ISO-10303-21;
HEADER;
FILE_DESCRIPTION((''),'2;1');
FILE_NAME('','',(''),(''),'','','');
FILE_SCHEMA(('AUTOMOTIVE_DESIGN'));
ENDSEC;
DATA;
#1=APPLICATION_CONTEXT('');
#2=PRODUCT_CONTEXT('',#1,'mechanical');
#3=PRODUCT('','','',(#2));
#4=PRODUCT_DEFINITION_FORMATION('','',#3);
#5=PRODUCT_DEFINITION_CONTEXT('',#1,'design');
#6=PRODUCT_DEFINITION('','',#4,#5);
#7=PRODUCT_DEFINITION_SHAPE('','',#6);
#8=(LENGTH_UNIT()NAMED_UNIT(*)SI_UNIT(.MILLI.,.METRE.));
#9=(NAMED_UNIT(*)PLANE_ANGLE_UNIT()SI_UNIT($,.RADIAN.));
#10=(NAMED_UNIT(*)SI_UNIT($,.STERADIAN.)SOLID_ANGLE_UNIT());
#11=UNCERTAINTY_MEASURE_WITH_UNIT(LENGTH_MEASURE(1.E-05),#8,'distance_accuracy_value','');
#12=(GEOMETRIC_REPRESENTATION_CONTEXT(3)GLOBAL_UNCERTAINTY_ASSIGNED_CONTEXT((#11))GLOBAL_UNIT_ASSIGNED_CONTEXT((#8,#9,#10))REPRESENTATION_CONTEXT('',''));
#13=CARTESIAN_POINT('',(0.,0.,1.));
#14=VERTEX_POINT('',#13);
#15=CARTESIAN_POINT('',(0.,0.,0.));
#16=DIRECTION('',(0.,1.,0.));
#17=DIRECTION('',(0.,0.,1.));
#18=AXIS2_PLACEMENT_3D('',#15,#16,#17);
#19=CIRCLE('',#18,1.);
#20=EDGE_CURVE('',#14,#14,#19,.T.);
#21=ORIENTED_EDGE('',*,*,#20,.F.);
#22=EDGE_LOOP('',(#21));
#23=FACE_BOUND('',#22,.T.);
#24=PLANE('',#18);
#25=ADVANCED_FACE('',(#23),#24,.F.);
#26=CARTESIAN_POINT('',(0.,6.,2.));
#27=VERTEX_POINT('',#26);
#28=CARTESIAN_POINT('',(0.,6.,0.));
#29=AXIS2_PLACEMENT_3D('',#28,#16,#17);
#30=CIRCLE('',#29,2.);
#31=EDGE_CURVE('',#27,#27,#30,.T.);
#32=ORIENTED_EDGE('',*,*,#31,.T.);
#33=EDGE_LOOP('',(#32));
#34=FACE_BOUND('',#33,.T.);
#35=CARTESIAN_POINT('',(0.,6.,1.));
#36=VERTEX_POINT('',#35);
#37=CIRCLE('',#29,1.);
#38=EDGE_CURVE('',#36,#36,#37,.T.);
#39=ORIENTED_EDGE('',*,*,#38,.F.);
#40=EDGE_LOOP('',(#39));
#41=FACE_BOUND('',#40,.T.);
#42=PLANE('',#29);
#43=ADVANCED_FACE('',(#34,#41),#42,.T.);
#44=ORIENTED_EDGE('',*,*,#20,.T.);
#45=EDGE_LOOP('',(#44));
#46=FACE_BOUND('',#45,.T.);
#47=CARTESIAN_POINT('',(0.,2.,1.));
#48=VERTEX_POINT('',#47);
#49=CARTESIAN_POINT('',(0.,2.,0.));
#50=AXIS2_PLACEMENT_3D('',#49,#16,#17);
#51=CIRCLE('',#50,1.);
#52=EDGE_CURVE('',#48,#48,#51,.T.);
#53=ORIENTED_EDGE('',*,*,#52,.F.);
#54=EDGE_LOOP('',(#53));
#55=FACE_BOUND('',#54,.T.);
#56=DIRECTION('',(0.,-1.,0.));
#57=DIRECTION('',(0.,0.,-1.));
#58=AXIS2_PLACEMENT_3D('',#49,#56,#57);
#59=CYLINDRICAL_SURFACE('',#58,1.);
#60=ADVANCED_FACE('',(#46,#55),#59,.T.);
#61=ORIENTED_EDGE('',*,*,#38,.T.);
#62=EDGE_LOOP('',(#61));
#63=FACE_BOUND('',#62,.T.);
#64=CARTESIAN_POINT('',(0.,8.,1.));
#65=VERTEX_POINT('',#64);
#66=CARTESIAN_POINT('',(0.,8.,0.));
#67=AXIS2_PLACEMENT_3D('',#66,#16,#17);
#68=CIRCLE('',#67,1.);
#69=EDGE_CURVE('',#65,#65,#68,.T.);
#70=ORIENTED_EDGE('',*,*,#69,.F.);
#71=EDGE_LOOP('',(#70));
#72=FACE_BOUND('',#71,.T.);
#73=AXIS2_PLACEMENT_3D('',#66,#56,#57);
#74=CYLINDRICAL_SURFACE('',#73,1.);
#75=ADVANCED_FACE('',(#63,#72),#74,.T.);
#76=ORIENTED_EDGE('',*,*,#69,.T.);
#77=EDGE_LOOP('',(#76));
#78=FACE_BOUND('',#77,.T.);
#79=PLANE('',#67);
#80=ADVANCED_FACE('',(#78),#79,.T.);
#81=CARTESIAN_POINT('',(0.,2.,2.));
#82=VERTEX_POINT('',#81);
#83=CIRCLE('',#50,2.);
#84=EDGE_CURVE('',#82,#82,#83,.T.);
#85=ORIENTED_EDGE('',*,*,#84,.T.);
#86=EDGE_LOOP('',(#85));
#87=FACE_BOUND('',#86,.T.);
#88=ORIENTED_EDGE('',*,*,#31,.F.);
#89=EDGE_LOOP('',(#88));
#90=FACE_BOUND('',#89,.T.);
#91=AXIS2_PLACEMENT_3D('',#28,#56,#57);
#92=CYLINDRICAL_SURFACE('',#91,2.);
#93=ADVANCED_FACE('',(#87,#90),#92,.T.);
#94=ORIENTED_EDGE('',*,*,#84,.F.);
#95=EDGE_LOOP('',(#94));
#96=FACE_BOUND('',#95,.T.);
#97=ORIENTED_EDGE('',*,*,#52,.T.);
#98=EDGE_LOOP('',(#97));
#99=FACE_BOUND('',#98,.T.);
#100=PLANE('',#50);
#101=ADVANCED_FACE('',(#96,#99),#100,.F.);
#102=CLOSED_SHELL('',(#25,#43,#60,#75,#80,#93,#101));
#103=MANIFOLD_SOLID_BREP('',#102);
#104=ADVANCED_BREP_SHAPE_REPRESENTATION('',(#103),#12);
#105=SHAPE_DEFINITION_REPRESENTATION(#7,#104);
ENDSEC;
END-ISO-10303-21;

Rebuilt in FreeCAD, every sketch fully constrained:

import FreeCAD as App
import Part
import Sketcher

V = App.Vector
Q = App.Units.Quantity

doc = App.newDocument("Part")
body = doc.addObject("PartDesign::Body", "Body")

# Sketch on XZ plane
sketch1 = doc.addObject("Sketcher::SketchObject", "Sketch")
body.addObject(sketch1)
sketch1.AttachmentSupport = (doc.XZ_Plane, [""])
sketch1.MapMode = "FlatFace"
sketch1.addGeometry(Part.Circle(V(0, 0, 0), V(0, 0, 1), 1), False)
sketch1.addConstraint([
    Sketcher.Constraint("Coincident", 0, 3, -1, 1),
    Sketcher.Constraint("Diameter", 0, Q("2 mm")),
])
pad1 = doc.addObject("PartDesign::Pad", "Pad")
body.addObject(pad1)
pad1.Profile = sketch1
pad1.Length = 2
pad1.Reversed = True

# Sketch on XZ plane
sketch2 = doc.addObject("Sketcher::SketchObject", "Sketch001")
body.addObject(sketch2)
sketch2.AttachmentSupport = (doc.XZ_Plane, [""])
sketch2.MapMode = "FlatFace"
sketch2.AttachmentOffset = App.Placement(V(0, 0, -2), App.Rotation())
sketch2.addGeometry(Part.Circle(V(0, 0, 0), V(0, 0, 1), 2), False)
sketch2.addConstraint([
    Sketcher.Constraint("Coincident", 0, 3, -1, 1),
    Sketcher.Constraint("Diameter", 0, Q("4 mm")),
])
pad2 = doc.addObject("PartDesign::Pad", "Pad001")
body.addObject(pad2)
pad2.Profile = sketch2
pad2.Length = 4
pad2.Reversed = True

# Sketch on XZ plane
sketch3 = doc.addObject("Sketcher::SketchObject", "Sketch002")
body.addObject(sketch3)
sketch3.AttachmentSupport = (doc.XZ_Plane, [""])
sketch3.MapMode = "FlatFace"
sketch3.AttachmentOffset = App.Placement(V(0, 0, -6), App.Rotation())
sketch3.addGeometry(Part.Circle(V(0, 0, 0), V(0, 0, 1), 1), False)
sketch3.addConstraint([
    Sketcher.Constraint("Coincident", 0, 3, -1, 1),
    Sketcher.Constraint("Diameter", 0, Q("2 mm")),
])
pad3 = doc.addObject("PartDesign::Pad", "Pad002")
body.addObject(pad3)
pad3.Profile = sketch3
pad3.Length = 2
pad3.Reversed = True

doc.recompute()
